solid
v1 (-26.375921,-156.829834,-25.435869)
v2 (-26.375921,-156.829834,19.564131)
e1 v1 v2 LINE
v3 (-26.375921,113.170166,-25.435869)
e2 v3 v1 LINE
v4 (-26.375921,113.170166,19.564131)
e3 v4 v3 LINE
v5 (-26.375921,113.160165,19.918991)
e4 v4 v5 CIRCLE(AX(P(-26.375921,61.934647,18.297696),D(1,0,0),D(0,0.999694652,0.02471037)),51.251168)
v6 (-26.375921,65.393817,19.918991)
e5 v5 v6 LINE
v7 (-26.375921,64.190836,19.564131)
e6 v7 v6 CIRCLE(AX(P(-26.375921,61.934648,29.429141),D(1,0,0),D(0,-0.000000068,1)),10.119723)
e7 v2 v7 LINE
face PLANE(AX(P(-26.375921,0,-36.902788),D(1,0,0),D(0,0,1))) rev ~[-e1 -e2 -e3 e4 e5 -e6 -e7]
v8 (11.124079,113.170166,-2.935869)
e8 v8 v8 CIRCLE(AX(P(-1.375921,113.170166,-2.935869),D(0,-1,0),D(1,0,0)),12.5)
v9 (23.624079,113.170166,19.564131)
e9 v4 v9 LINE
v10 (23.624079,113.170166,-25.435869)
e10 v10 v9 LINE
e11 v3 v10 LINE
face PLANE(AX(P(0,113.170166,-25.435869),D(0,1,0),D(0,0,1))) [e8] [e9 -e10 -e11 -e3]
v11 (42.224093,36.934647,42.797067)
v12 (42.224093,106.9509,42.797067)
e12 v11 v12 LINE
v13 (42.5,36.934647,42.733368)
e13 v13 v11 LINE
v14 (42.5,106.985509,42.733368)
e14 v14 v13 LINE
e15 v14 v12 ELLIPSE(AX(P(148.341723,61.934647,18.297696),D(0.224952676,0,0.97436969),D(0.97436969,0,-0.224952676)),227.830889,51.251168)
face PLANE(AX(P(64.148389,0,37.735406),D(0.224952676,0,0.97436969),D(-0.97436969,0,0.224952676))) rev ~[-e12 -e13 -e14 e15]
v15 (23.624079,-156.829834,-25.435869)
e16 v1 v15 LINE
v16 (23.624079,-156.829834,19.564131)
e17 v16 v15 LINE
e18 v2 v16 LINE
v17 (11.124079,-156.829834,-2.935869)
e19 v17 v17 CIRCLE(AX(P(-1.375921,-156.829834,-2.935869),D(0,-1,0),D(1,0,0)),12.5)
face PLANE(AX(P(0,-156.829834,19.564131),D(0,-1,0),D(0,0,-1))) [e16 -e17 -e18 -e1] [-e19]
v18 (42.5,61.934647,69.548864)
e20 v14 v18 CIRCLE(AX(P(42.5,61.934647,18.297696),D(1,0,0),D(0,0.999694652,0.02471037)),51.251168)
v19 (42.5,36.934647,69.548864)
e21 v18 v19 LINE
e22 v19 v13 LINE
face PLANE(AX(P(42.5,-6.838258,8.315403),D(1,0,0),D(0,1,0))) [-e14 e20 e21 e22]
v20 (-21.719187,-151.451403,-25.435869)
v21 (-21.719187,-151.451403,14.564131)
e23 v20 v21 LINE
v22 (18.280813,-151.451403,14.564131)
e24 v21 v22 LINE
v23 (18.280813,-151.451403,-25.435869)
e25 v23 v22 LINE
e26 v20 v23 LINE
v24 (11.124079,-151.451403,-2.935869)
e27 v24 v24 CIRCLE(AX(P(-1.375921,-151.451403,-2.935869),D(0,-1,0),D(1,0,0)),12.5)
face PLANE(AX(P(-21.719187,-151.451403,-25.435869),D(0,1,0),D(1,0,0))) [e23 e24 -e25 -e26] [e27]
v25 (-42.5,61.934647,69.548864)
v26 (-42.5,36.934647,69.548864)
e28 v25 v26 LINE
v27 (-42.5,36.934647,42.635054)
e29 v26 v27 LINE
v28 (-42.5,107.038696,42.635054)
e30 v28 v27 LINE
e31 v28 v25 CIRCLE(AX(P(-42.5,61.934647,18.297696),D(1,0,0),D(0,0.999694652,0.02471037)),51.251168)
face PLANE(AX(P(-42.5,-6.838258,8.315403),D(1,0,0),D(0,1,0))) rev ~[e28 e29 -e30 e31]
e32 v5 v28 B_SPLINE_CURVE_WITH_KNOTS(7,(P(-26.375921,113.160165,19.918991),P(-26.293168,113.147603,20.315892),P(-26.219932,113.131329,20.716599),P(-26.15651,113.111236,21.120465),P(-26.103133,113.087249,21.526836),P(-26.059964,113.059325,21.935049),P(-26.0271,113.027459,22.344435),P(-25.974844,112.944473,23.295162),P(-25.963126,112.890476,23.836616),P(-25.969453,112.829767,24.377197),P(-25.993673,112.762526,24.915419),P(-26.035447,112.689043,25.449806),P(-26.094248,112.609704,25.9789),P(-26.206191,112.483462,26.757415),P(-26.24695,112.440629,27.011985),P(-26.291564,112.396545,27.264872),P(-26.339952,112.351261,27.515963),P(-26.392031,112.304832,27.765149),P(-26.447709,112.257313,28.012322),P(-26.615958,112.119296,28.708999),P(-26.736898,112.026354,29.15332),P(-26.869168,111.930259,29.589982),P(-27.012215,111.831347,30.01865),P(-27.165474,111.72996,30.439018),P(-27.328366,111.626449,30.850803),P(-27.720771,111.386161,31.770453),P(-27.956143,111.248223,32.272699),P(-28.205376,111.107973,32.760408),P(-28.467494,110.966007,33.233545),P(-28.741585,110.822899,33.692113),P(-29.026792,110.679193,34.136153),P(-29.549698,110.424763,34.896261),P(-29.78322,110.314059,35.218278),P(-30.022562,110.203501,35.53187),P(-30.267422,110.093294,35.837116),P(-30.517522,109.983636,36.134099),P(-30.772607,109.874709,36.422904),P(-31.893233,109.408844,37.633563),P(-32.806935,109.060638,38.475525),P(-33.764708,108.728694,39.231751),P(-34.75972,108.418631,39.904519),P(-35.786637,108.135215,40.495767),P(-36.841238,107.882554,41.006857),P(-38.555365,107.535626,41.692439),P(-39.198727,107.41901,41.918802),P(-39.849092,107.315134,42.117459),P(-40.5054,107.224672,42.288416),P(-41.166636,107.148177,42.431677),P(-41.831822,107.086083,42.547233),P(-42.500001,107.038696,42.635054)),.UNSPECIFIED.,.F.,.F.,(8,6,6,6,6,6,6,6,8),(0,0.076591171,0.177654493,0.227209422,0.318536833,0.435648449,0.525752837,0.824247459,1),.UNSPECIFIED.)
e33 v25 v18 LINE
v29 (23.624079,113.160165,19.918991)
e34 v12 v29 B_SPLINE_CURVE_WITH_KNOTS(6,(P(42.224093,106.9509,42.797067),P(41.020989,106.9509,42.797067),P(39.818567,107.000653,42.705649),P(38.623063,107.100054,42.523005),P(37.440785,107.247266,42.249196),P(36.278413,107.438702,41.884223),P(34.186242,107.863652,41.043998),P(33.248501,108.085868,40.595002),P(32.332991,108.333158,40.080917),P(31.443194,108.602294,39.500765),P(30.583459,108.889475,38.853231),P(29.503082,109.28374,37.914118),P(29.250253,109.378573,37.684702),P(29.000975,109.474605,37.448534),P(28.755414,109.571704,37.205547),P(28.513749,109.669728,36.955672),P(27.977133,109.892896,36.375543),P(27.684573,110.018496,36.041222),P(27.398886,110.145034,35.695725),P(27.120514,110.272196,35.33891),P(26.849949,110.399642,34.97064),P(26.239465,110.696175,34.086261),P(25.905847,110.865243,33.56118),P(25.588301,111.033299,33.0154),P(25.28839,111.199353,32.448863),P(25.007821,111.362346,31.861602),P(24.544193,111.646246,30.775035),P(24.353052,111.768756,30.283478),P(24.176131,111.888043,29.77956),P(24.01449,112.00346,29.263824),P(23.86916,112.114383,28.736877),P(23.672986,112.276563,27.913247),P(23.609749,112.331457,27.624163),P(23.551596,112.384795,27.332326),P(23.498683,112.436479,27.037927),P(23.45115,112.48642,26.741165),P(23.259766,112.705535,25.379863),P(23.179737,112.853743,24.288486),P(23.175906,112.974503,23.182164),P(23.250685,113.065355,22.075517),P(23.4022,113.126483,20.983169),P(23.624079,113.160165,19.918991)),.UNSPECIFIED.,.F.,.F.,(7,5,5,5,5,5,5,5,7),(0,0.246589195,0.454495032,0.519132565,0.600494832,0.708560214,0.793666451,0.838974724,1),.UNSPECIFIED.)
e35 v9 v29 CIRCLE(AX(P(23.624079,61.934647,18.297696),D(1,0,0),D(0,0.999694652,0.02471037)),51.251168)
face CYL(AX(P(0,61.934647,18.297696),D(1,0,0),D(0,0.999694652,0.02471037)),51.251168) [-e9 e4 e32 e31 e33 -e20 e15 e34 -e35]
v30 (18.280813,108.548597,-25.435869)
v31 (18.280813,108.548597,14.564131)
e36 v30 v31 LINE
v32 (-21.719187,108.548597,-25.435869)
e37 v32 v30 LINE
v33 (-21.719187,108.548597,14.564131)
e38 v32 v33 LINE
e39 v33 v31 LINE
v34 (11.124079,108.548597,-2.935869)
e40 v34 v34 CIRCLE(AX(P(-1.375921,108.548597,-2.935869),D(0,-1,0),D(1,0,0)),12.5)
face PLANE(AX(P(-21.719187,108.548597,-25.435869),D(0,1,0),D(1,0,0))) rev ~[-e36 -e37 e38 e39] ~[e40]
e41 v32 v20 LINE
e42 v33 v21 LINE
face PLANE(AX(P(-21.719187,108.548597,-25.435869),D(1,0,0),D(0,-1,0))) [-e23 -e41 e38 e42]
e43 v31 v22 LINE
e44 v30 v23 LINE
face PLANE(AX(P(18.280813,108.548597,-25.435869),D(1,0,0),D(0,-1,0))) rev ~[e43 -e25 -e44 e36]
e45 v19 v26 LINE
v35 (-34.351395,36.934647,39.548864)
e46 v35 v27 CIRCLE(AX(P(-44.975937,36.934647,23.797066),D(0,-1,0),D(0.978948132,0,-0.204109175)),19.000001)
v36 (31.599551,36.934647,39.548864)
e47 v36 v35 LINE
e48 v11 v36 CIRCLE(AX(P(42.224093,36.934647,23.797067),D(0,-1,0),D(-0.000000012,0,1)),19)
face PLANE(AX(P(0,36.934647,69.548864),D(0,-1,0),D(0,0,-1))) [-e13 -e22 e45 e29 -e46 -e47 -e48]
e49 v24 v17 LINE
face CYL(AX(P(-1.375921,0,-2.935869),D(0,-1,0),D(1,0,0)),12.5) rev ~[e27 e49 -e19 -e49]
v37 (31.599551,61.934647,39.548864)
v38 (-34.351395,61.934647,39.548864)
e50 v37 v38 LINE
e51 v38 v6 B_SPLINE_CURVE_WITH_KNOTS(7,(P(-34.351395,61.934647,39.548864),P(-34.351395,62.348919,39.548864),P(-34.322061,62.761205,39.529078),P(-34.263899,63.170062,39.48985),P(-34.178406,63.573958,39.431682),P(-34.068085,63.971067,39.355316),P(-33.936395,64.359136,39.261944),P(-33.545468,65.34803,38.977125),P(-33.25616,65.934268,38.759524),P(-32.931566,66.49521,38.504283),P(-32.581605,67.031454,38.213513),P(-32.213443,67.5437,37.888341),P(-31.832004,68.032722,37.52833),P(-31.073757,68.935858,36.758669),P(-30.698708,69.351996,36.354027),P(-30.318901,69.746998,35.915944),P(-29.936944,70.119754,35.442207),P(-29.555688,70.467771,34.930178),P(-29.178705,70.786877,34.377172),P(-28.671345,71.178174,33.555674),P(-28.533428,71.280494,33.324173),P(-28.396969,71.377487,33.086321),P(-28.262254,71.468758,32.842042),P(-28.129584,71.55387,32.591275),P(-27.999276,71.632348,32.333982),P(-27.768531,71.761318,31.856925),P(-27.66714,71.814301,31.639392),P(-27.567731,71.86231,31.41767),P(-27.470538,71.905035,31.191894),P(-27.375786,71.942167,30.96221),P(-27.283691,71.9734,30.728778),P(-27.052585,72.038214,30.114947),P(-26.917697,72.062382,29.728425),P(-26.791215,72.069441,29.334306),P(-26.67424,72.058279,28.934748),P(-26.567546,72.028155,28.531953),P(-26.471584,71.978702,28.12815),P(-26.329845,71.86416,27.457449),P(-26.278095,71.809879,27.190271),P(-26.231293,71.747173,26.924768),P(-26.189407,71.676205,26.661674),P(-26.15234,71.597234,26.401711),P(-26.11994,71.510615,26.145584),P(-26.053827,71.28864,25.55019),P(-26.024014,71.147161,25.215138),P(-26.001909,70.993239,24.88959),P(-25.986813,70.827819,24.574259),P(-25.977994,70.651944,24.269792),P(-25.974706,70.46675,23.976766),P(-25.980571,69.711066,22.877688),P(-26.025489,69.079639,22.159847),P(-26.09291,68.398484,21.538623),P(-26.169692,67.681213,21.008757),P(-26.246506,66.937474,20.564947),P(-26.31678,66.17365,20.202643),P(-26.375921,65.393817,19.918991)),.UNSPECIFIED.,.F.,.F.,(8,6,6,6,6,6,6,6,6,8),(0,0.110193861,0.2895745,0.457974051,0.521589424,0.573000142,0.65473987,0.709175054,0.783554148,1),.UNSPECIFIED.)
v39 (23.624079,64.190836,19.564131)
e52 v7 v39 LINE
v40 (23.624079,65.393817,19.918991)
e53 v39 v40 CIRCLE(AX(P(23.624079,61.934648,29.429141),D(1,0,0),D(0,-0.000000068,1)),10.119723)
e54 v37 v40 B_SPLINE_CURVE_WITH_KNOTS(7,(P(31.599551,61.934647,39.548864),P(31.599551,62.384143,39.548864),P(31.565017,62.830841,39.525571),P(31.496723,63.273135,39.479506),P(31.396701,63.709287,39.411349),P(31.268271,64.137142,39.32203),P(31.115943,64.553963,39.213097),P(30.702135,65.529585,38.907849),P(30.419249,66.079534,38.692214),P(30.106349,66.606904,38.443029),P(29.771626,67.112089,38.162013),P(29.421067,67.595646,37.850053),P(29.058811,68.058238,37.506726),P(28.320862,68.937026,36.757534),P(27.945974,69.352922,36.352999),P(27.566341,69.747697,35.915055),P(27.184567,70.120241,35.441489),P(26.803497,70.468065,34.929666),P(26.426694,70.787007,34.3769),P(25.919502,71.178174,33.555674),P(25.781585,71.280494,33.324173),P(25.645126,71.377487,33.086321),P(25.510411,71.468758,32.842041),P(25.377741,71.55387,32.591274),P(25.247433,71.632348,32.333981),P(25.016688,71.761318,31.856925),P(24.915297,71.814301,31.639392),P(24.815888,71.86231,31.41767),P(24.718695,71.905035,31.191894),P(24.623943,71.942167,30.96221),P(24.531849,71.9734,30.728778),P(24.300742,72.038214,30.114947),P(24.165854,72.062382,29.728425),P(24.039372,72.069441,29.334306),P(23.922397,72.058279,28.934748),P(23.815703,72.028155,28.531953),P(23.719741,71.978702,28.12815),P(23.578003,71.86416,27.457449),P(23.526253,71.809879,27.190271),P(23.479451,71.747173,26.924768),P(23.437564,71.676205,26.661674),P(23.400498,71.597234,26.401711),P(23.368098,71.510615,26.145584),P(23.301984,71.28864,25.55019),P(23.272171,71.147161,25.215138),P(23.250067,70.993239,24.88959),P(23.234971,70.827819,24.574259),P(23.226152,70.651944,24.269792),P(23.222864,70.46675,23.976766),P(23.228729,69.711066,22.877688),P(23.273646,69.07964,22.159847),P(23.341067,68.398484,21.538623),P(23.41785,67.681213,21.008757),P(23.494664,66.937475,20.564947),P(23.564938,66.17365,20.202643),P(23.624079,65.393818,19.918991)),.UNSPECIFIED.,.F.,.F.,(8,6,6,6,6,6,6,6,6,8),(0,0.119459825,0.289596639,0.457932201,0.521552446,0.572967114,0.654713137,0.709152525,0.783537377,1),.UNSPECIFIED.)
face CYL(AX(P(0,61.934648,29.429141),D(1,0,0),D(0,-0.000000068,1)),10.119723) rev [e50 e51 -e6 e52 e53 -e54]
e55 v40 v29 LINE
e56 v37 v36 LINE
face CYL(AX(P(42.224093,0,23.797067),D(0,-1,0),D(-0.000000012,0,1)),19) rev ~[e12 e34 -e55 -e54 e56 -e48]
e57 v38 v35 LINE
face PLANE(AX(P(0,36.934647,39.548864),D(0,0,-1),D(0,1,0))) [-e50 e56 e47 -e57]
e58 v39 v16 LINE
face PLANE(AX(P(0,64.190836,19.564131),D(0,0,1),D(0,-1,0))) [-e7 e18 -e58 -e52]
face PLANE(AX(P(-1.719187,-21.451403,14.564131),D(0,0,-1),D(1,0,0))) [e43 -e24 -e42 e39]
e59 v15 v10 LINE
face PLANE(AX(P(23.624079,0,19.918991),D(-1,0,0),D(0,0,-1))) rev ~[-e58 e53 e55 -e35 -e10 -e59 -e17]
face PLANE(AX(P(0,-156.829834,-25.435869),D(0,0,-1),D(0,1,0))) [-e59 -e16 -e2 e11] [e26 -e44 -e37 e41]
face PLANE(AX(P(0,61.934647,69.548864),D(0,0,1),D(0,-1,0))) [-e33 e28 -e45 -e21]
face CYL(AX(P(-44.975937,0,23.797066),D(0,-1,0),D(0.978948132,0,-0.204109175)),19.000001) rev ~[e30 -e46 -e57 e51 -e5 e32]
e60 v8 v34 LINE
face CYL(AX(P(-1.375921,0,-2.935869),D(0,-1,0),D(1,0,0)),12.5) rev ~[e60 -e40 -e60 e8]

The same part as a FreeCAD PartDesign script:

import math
import FreeCAD as App
import Part
import Sketcher
from FreeCAD import Vector
Q = App.Units.Quantity

doc = App.newDocument("Part")
body = doc.addObject("PartDesign::Body", "Body")

sketch1 = body.newObject("Sketcher::SketchObject", "Sketch")
sketch1.AttachmentSupport = (doc.getObject("YZ_Plane"), [""])
sketch1.MapMode = "FlatFace"
sketch1.addGeometry(Part.ArcOfCircle(Part.Circle(Vector(61.934648, 29.429141, 0), Vector(0, 0, 1), 10.119723), math.radians(-77.117663), math.radians(90.000004)), False)
sketch1.addGeometry(Part.LineSegment(Vector(64.190836, 19.564131, 0), Vector(-156.829834, 19.564131, 0)), False)
sketch1.addGeometry(Part.LineSegment(Vector(-156.829834, 19.564131, 0), Vector(-156.829834, -25.435869, 0)), False)
sketch1.addGeometry(Part.LineSegment(Vector(-156.829834, -25.435869, 0), Vector(113.170166, -25.435869, 0)), False)
sketch1.addGeometry(Part.LineSegment(Vector(113.170166, -25.435869, 0), Vector(113.170166, 19.564131, 0)), False)
sketch1.addGeometry(Part.ArcOfCircle(Part.Circle(Vector(61.934647, 18.297696, 0), Vector(0, 0, 1), 51.251168), math.radians(1.415944), math.radians(90)), False)
sketch1.addGeometry(Part.LineSegment(Vector(61.934647, 69.548864, 0), Vector(36.934647, 69.548864, 0)), False)
sketch1.addGeometry(Part.LineSegment(Vector(36.934647, 69.548864, 0), Vector(36.934647, 39.548864, 0)), False)
sketch1.addGeometry(Part.LineSegment(Vector(36.934647, 39.548864, 0), Vector(61.934647, 39.548864, 0)), False)
sketch1.addConstraint(Sketcher.Constraint("Coincident", 0, 1, 1, 1))
sketch1.addConstraint(Sketcher.Constraint("Coincident", 1, 2, 2, 1))
sketch1.addConstraint(Sketcher.Constraint("Coincident", 2, 2, 3, 1))
sketch1.addConstraint(Sketcher.Constraint("Coincident", 3, 2, 4, 1))
sketch1.addConstraint(Sketcher.Constraint("Coincident", 4, 2, 5, 1))
sketch1.addConstraint(Sketcher.Constraint("Tangent", 5, 2, 6, 1))
sketch1.addConstraint(Sketcher.Constraint("Coincident", 6, 2, 7, 1))
sketch1.addConstraint(Sketcher.Constraint("Coincident", 7, 2, 8, 1))
sketch1.addConstraint(Sketcher.Constraint("Tangent", 8, 2, 0, 2))
sketch1.addConstraint(Sketcher.Constraint("Horizontal", 1))
sketch1.addConstraint(Sketcher.Constraint("Vertical", 2))
sketch1.addConstraint(Sketcher.Constraint("Horizontal", 3))
sketch1.addConstraint(Sketcher.Constraint("Vertical", 4))
sketch1.addConstraint(Sketcher.Constraint("Horizontal", 6))
sketch1.addConstraint(Sketcher.Constraint("Vertical", 7))
sketch1.addConstraint(Sketcher.Constraint("Horizontal", 8))
sketch1.addConstraint(Sketcher.Constraint("Horizontal", 1, 2, 4, 2))
sketch1.addConstraint(Sketcher.Constraint("Vertical", 0, 3, 5, 3))
sketch1.addConstraint(Sketcher.Constraint("DistanceX", 3, 1, 3, 2, Q("270 mm")))
sketch1.addConstraint(Sketcher.Constraint("DistanceX", 6, 2, 6, 1, Q("25 mm")))
sketch1.addConstraint(Sketcher.Constraint("DistanceY", 2, 2, 2, 1, Q("45 mm")))
sketch1.addConstraint(Sketcher.Constraint("DistanceY", 7, 2, 7, 1, Q("30 mm")))
sketch1.addConstraint(Sketcher.Constraint("Radius", 5, Q("51.251168 mm")))
sketch1.addConstraint(Sketcher.Constraint("Radius", 0, Q("10.119723 mm")))
sketch1.addConstraint(Sketcher.Constraint("DistanceX", 1, 2, 1, 1, Q("221.02067 mm")))
sketch1.addConstraint(Sketcher.Constraint("DistanceY", -1, 1, 0, 3, Q("29.429141 mm")))
sketch1.addConstraint(Sketcher.Constraint("DistanceX", -1, 1, 0, 3, Q("61.934648 mm")))
pad1 = body.newObject("PartDesign::Pad", "Pad")
pad1.Profile = sketch1
pad1.Length = 85
pad1.Midplane = True

sketch2 = body.newObject("Sketcher::SketchObject", "Sketch001")
sketch2.AttachmentSupport = (doc.getObject("XZ_Plane"), [""])
sketch2.MapMode = "FlatFace"
sketch2.addGeometry(Part.LineSegment(Vector(23.624079, 19.918991, 0), Vector(23.624079, -36.902788, 0)), False)
sketch2.addGeometry(Part.LineSegment(Vector(23.624079, -36.902788, 0), Vector(-26.375921, -36.902788, 0)), False)
sketch2.addGeometry(Part.LineSegment(Vector(-26.375921, -36.902788, 0), Vector(-26.375921, 19.918991, 0)), False)
sketch2.addGeometry(Part.ArcOfCircle(Part.Circle(Vector(-44.975937, 23.797066, 0), Vector(0, 0, 1), 19.000001), math.radians(-11.777356), math.radians(89.999997)), False)
sketch2.addGeometry(Part.LineSegment(Vector(-44.975936, 42.797067, 0), Vector(-64.052075, -61.106175, 0)), False)
sketch2.addGeometry(Part.LineSegment(Vector(-64.052075, -61.106175, 0), Vector(44.571461, -67.325629, 0)), False)
sketch2.addGeometry(Part.LineSegment(Vector(44.571461, -67.325629, 0), Vector(64.148389, 37.735406, 0)), False)
sketch2.addGeometry(Part.LineSegment(Vector(64.148389, 37.735406, 0), Vector(42.224093, 42.797067, 0)), False)
sketch2.addGeometry(Part.ArcOfCircle(Part.Circle(Vector(42.224093, 23.797067, 0), Vector(0, 0, 1), 19), math.radians(90.000001), math.radians(191.777361)), False)
sketch2.addConstraint(Sketcher.Constraint("Coincident", 0, 2, 1, 1))
sketch2.addConstraint(Sketcher.Constraint("Coincident", 1, 2, 2, 1))
sketch2.addConstraint(Sketcher.Constraint("Coincident", 2, 2, 3, 1))
sketch2.addConstraint(Sketcher.Constraint("Coincident", 3, 2, 4, 1))
sketch2.addConstraint(Sketcher.Constraint("Coincident", 4, 2, 5, 1))
sketch2.addConstraint(Sketcher.Constraint("Coincident", 5, 2, 6, 1))
sketch2.addConstraint(Sketcher.Constraint("Coincident", 6, 2, 7, 1))
sketch2.addConstraint(Sketcher.Constraint("Coincident", 7, 2, 8, 1))
sketch2.addConstraint(Sketcher.Constraint("Coincident", 8, 2, 0, 1))
sketch2.addConstraint(Sketcher.Constraint("Vertical", 0))
sketch2.addConstraint(Sketcher.Constraint("Horizontal", 1))
sketch2.addConstraint(Sketcher.Constraint("Vertical", 2))
sketch2.addConstraint(Sketcher.Constraint("Equal", 3, 8))
sketch2.addConstraint(Sketcher.Constraint("Horizontal", 3, 3, 8, 3))
sketch2.addConstraint(Sketcher.Constraint("Horizontal", 2, 2, 8, 2))
sketch2.addConstraint(Sketcher.Constraint("Vertical", 8, 3, 7, 2))
sketch2.addConstraint(Sketcher.Constraint("Radius", 3, Q("19.000001 mm")))
sketch2.addConstraint(Sketcher.Constraint("DistanceX", 1, 2, 1, 1, Q("50 mm")))
sketch2.addConstraint(Sketcher.Constraint("DistanceY", 0, 2, 0, 1, Q("56.821779 mm")))
sketch2.addConstraint(Sketcher.Constraint("Distance", 6, Q("106.86944 mm")))
sketch2.addConstraint(Sketcher.Constraint("DistanceX", -1, 1, 0, 2, Q("23.624079 mm")))
sketch2.addConstraint(Sketcher.Constraint("DistanceY", -1, 1, 2, 2, Q("19.918991 mm")))
sketch2.addConstraint(Sketcher.Constraint("DistanceX", -1, 1, 5, 2, Q("44.571461 mm")))
sketch2.addConstraint(Sketcher.Constraint("DistanceY", 5, 2, -1, 1, Q("67.325629 mm")))
sketch2.addConstraint(Sketcher.Constraint("DistanceX", -1, 1, 6, 2, Q("64.148389 mm")))
sketch2.addConstraint(Sketcher.Constraint("DistanceX", 3, 3, 8, 3, Q("87.20003 mm")))
sketch2.addConstraint(Sketcher.Constraint("DistanceX", 3, 2, 8, 3, Q("87.200029 mm")))
sketch2.addConstraint(Sketcher.Constraint("DistanceX", 4, 2, 3, 3, Q("19.076138 mm")))
sketch2.addConstraint(Sketcher.Constraint("DistanceY", 4, 2, 3, 3, Q("84.903241 mm")))
pocket1 = body.newObject("PartDesign::Pocket", "Pocket")
pocket1.Profile = sketch2
pocket1.Length = 348
pocket1.Midplane = True

sketch3 = body.newObject("Sketcher::SketchObject", "Sketch002")
sketch3.AttachmentSupport = (doc.getObject("XZ_Plane"), [""])
sketch3.MapMode = "FlatFace"
sketch3.addGeometry(Part.Circle(Vector(-1.375921, -2.935869, 0), Vector(0, 0, 1), 12.5), False)
sketch3.addConstraint(Sketcher.Constraint("Diameter", 0, Q("25 mm")))
sketch3.addConstraint(Sketcher.Constraint("DistanceX", 0, 3, -1, 1, Q("1.375921 mm")))
sketch3.addConstraint(Sketcher.Constraint("DistanceY", 0, 3, -1, 1, Q("2.935869 mm")))
pocket2 = body.newObject("PartDesign::Pocket", "Pocket001")
pocket2.Profile = sketch3
pocket2.Length = 532
pocket2.Midplane = True

sketch4 = body.newObject("Sketcher::SketchObject", "Sketch003")
sketch4.AttachmentSupport = (doc.getObject("XY_Plane"), [""])
sketch4.MapMode = "FlatFace"
sketch4.AttachmentOffset = App.Placement(Vector(0, 0, -25.435869), App.Rotation())
sketch4.addGeometry(Part.LineSegment(Vector(-21.719187, -151.451403, 0), Vector(-21.719187, 108.548597, 0)), False)
sketch4.addGeometry(Part.LineSegment(Vector(-21.719187, 108.548597, 0), Vector(18.280813, 108.548597, 0)), False)
sketch4.addGeometry(Part.LineSegment(Vector(18.280813, 108.548597, 0), Vector(18.280813, -151.451403, 0)), False)
sketch4.addGeometry(Part.LineSegment(Vector(18.280813, -151.451403, 0), Vector(-21.719187, -151.451403, 0)), False)
sketch4.addConstraint(Sketcher.Constraint("Coincident", 0, 2, 1, 1))
sketch4.addConstraint(Sketcher.Constraint("Coincident", 1, 2, 2, 1))
sketch4.addConstraint(Sketcher.Constraint("Coincident", 2, 2, 3, 1))
sketch4.addConstraint(Sketcher.Constraint("Coincident", 3, 2, 0, 1))
sketch4.addConstraint(Sketcher.Constraint("Vertical", 0))
sketch4.addConstraint(Sketcher.Constraint("Horizontal", 1))
sketch4.addConstraint(Sketcher.Constraint("Vertical", 2))
sketch4.addConstraint(Sketcher.Constraint("Horizontal", 3))
sketch4.addConstraint(Sketcher.Constraint("DistanceX", 1, 1, 1, 2, Q("40 mm")))
sketch4.addConstraint(Sketcher.Constraint("DistanceY", 0, 1, 0, 2, Q("260 mm")))
sketch4.addConstraint(Sketcher.Constraint("DistanceX", 0, 2, -1, 1, Q("21.719187 mm")))
sketch4.addConstraint(Sketcher.Constraint("DistanceY", -1, 1, 0, 2, Q("108.548597 mm")))
pocket3 = body.newObject("PartDesign::Pocket", "Pocket002")
pocket3.Profile = sketch4
pocket3.Length = 40
pocket3.Reversed = True

doc.recompute()
